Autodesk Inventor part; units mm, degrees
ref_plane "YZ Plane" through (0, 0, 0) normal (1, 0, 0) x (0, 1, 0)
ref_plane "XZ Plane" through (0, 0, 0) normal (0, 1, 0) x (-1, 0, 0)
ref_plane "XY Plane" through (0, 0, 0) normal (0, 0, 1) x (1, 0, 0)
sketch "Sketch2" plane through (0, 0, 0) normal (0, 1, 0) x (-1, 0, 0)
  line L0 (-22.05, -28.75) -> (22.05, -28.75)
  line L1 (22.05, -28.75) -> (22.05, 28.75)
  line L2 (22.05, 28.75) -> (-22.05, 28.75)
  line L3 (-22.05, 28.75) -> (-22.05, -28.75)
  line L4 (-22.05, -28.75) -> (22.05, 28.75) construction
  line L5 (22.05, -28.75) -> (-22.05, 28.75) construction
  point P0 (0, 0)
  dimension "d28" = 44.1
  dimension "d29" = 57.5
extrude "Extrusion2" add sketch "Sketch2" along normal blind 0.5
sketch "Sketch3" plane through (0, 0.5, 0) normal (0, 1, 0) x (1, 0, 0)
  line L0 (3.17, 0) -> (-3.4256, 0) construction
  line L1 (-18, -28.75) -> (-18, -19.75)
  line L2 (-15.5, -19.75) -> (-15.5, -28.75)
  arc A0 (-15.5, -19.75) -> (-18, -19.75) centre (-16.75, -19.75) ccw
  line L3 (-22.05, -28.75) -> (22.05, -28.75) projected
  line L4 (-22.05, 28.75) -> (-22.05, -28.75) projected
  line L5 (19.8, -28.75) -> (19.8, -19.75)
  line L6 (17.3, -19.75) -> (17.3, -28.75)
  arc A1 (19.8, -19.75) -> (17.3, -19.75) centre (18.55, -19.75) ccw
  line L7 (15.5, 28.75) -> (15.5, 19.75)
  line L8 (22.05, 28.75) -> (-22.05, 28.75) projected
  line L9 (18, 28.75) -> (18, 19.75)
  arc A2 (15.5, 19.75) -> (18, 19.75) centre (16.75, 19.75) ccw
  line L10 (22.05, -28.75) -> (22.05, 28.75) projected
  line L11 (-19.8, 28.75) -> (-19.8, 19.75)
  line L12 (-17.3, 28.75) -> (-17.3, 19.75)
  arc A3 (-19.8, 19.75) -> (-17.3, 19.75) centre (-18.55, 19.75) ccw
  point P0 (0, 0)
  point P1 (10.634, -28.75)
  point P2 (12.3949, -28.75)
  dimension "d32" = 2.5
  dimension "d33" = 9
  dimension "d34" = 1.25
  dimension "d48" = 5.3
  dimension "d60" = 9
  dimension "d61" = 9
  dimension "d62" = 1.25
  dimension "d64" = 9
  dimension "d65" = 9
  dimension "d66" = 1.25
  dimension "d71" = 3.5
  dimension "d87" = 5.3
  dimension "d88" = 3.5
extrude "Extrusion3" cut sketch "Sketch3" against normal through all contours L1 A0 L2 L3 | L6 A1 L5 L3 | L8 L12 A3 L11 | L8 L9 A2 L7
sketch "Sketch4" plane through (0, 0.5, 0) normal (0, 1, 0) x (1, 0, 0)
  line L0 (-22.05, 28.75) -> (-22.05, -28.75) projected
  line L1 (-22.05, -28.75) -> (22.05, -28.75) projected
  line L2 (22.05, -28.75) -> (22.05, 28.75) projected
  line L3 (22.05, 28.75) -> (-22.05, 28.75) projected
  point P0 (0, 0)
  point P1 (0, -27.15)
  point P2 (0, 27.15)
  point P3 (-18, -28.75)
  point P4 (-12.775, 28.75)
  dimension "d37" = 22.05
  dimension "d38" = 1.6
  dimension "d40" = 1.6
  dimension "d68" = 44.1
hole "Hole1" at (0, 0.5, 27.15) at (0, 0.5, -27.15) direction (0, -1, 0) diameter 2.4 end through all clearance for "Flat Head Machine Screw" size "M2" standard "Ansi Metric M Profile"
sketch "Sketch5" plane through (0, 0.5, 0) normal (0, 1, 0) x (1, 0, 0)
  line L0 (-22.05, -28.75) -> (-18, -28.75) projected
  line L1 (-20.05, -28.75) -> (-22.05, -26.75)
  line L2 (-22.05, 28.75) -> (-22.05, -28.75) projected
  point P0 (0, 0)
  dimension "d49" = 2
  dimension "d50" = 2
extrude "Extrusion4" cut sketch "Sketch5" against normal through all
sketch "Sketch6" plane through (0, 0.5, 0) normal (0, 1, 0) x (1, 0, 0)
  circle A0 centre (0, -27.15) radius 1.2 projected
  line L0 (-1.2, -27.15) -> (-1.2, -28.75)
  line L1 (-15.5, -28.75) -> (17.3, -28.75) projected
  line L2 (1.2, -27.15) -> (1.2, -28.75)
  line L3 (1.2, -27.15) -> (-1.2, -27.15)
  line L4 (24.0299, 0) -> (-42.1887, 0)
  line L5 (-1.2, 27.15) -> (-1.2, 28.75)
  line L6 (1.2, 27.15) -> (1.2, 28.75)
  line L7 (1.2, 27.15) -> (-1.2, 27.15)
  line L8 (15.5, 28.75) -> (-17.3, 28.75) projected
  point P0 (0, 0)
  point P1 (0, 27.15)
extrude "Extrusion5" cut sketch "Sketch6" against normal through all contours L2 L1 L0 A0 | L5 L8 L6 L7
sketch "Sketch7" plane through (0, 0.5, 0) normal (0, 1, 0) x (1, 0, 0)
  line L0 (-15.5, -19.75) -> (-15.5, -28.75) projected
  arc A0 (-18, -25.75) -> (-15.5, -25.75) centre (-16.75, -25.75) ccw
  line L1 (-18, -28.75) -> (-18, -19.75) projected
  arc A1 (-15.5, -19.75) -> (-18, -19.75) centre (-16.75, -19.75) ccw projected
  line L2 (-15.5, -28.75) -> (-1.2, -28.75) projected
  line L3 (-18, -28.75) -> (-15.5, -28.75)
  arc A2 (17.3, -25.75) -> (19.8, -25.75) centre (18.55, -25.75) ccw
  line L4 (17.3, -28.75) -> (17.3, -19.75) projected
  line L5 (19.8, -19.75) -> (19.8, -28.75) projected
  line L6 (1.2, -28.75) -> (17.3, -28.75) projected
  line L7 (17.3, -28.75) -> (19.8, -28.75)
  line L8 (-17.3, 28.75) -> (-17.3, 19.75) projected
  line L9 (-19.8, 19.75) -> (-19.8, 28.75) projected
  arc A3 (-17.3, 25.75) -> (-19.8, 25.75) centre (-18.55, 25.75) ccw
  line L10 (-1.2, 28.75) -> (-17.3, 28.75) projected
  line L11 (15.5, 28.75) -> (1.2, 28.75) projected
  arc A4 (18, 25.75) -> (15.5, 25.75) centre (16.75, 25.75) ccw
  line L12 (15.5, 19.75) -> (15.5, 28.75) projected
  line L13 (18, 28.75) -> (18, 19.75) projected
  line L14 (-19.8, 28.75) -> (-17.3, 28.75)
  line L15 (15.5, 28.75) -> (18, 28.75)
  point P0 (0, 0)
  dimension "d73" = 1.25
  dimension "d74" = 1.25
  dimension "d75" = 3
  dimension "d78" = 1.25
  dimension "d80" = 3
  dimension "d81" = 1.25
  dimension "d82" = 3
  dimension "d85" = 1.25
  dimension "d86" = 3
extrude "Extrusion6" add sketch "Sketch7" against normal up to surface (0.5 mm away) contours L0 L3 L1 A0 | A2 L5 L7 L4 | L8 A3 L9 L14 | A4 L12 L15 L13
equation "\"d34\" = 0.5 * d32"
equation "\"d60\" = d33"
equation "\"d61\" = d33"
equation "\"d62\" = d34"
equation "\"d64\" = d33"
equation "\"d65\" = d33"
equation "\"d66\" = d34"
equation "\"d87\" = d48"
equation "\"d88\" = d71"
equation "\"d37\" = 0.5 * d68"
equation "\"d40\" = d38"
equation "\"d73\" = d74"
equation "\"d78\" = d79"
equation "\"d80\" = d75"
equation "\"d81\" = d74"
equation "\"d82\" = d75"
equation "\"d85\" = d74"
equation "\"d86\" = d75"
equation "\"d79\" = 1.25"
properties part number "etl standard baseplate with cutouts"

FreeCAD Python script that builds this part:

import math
import FreeCAD as App
import Part
import Sketcher
from FreeCAD import Vector
Q = App.Units.Quantity

doc = App.newDocument("Part")
body = doc.addObject("PartDesign::Body", "Body")

sketch1 = doc.addObject("Sketcher::SketchObject", "Sketch")
body.addObject(sketch1)
sketch1.AttachmentSupport = (doc.XZ_Plane, [""])
sketch1.MapMode = "FlatFace"
sketch1.addGeometry(Part.LineSegment(Vector(22, 29, 0), Vector(22, -29, 0)), False)
sketch1.addGeometry(Part.LineSegment(Vector(22, -29, 0), Vector(-22, -29, 0)), False)
sketch1.addGeometry(Part.LineSegment(Vector(-22, -29, 0), Vector(-22, 29, 0)), False)
sketch1.addGeometry(Part.LineSegment(Vector(-22, 29, 0), Vector(22, 29, 0)), False)
sketch1.addConstraint(Sketcher.Constraint("Coincident", 0, 2, 1, 1))
sketch1.addConstraint(Sketcher.Constraint("Coincident", 1, 2, 2, 1))
sketch1.addConstraint(Sketcher.Constraint("Coincident", 2, 2, 3, 1))
sketch1.addConstraint(Sketcher.Constraint("Coincident", 3, 2, 0, 1))
sketch1.addConstraint(Sketcher.Constraint("Vertical", 0))
sketch1.addConstraint(Sketcher.Constraint("Horizontal", 1))
sketch1.addConstraint(Sketcher.Constraint("Vertical", 2))
sketch1.addConstraint(Sketcher.Constraint("Horizontal", 3))
sketch1.addConstraint(Sketcher.Constraint("Symmetric", 0, 2, 2, 2, -1, 1))
sketch1.addConstraint(Sketcher.Constraint("DistanceX", 1, 2, 1, 1, Q("44.1 mm")))
sketch1.addConstraint(Sketcher.Constraint("DistanceY", 0, 2, 0, 1, Q("57.5 mm")))
pad1 = doc.addObject("PartDesign::Pad", "Pad")
body.addObject(pad1)
pad1.Profile = sketch1
pad1.Length = 0.5
pad1.Reversed = True

sketch2 = doc.addObject("Sketcher::SketchObject", "Sketch001")
body.addObject(sketch2)
sketch2.AttachmentSupport = (doc.XZ_Plane, [""])
sketch2.MapMode = "FlatFace"
sketch2.AttachmentOffset = App.Placement(Vector(0, 0, -0.5), App.Rotation())
sketch2.addGeometry(Part.LineSegment(Vector(-18, 19.8, 0), Vector(-18, 28.8, 0)), False)
sketch2.addGeometry(Part.LineSegment(Vector(-18, 28.8, 0), Vector(-15.5, 28.8, 0)), False)
sketch2.addGeometry(Part.LineSegment(Vector(-15.5, 28.8, 0), Vector(-15.5, 19.8, 0)), False)
sketch2.addGeometry(Part.ArcOfCircle(Part.Circle(Vector(-16.8, 19.8, 0), Vector(0, 0, 1), 1.2), math.radians(180), math.radians(360)), False)
sketch2.addGeometry(Part.LineSegment(Vector(17.3, 19.8, 0), Vector(17.3, 28.8, 0)), False)
sketch2.addGeometry(Part.LineSegment(Vector(17.3, 28.8, 0), Vector(19.8, 28.8, 0)), False)
sketch2.addGeometry(Part.LineSegment(Vector(19.8, 28.8, 0), Vector(19.8, 19.8, 0)), False)
sketch2.addGeometry(Part.ArcOfCircle(Part.Circle(Vector(18.6, 19.8, 0), Vector(0, 0, 1), 1.2), math.radians(180), math.radians(360)), False)
sketch2.addGeometry(Part.LineSegment(Vector(-17.3, -28.8, 0), Vector(-19.8, -28.8, 0)), False)
sketch2.addGeometry(Part.LineSegment(Vector(-19.8, -28.8, 0), Vector(-19.8, -19.8, 0)), False)
sketch2.addGeometry(Part.ArcOfCircle(Part.Circle(Vector(-18.6, -19.8, 0), Vector(0, 0, 1), 1.2), math.radians(0), math.radians(180)), False)
sketch2.addGeometry(Part.LineSegment(Vector(-17.3, -19.8, 0), Vector(-17.3, -28.8, 0)), False)
sketch2.addGeometry(Part.LineSegment(Vector(18, -28.8, 0), Vector(15.5, -28.8, 0)), False)
sketch2.addGeometry(Part.LineSegment(Vector(15.5, -28.8, 0), Vector(15.5, -19.8, 0)), False)
sketch2.addGeometry(Part.ArcOfCircle(Part.Circle(Vector(16.8, -19.8, 0), Vector(0, 0, 1), 1.2), math.radians(0), math.radians(180)), False)
sketch2.addGeometry(Part.LineSegment(Vector(18, -19.8, 0), Vector(18, -28.8, 0)), False)
sketch2.addConstraint(Sketcher.Constraint("Coincident", 0, 2, 1, 1))
sketch2.addConstraint(Sketcher.Constraint("Coincident", 1, 2, 2, 1))
sketch2.addConstraint(Sketcher.Constraint("Tangent", 2, 2, 3, 2))
sketch2.addConstraint(Sketcher.Constraint("Tangent", 3, 1, 0, 1))
sketch2.addConstraint(Sketcher.Constraint("Coincident", 4, 2, 5, 1))
sketch2.addConstraint(Sketcher.Constraint("Coincident", 5, 2, 6, 1))
sketch2.addConstraint(Sketcher.Constraint("Tangent", 6, 2, 7, 2))
sketch2.addConstraint(Sketcher.Constraint("Tangent", 7, 1, 4, 1))
sketch2.addConstraint(Sketcher.Constraint("Coincident", 8, 2, 9, 1))
sketch2.addConstraint(Sketcher.Constraint("Tangent", 9, 2, 10, 2))
sketch2.addConstraint(Sketcher.Constraint("Tangent", 10, 1, 11, 1))
sketch2.addConstraint(Sketcher.Constraint("Coincident", 11, 2, 8, 1))
sketch2.addConstraint(Sketcher.Constraint("Coincident", 12, 2, 13, 1))
sketch2.addConstraint(Sketcher.Constraint("Tangent", 13, 2, 14, 2))
sketch2.addConstraint(Sketcher.Constraint("Tangent", 14, 1, 15, 1))
sketch2.addConstraint(Sketcher.Constraint("Coincident", 15, 2, 12, 1))
sketch2.addConstraint(Sketcher.Constraint("Vertical", 0))
sketch2.addConstraint(Sketcher.Constraint("Horizontal", 1))
sketch2.addConstraint(Sketcher.Constraint("Vertical", 2))
sketch2.addConstraint(Sketcher.Constraint("Vertical", 4))
sketch2.addConstraint(Sketcher.Constraint("Horizontal", 5))
sketch2.addConstraint(Sketcher.Constraint("Vertical", 6))
sketch2.addConstraint(Sketcher.Constraint("Horizontal", 8))
sketch2.addConstraint(Sketcher.Constraint("Vertical", 9))
sketch2.addConstraint(Sketcher.Constraint("Vertical", 11))
sketch2.addConstraint(Sketcher.Constraint("Horizontal", 12))
sketch2.addConstraint(Sketcher.Constraint("Vertical", 13))
sketch2.addConstraint(Sketcher.Constraint("Vertical", 15))
sketch2.addConstraint(Sketcher.Constraint("Equal", 3, 7))
sketch2.addConstraint(Sketcher.Constraint("Equal", 7, 10))
sketch2.addConstraint(Sketcher.Constraint("Equal", 10, 14))
sketch2.addConstraint(Sketcher.Constraint("Symmetric", 7, 3, 10, 3, -1, 1))
sketch2.addConstraint(Sketcher.Constraint("Symmetric", 3, 3, 14, 3, -1, 1))
sketch2.addConstraint(Sketcher.Constraint("Horizontal", 3, 3, 7, 3))
sketch2.addConstraint(Sketcher.Constraint("Horizontal", 1, 2, 4, 2))
sketch2.addConstraint(Sketcher.Constraint("Horizontal", 11, 2, 12, 2))
sketch2.addConstraint(Sketcher.Constraint("Equal", 6, 9))
sketch2.addConstraint(Sketcher.Constraint("DistanceY", 0, 1, 0, 2, Q("9 mm")))
sketch2.addConstraint(Sketcher.Constraint("Radius", 3, Q("1.25 mm")))
sketch2.addConstraint(Sketcher.Constraint("DistanceX", 0, 2, -1, 1, Q("18 mm")))
sketch2.addConstraint(Sketcher.Constraint("DistanceX", -1, 1, 4, 2, Q("17.3 mm")))
sketch2.addConstraint(Sketcher.Constraint("DistanceY", 10, 3, 3, 3, Q("39.5 mm")))
pocket1 = doc.addObject("PartDesign::Pocket", "Pocket")
body.addObject(pocket1)
pocket1.Profile = sketch2
pocket1.Type = "ThroughAll"
pocket1.Reversed = True

sketch3 = doc.addObject("Sketcher::SketchObject", "Sketch002")
body.addObject(sketch3)
sketch3.AttachmentSupport = (doc.XZ_Plane, [""])
sketch3.MapMode = "FlatFace"
sketch3.AttachmentOffset = App.Placement(Vector(0, 0, -0.5), App.Rotation())
sketch3.addGeometry(Part.Circle(Vector(0, 27.1, 0), Vector(0, 0, 1), 1.2), False)
sketch3.addGeometry(Part.Circle(Vector(0, -27.1, 0), Vector(0, 0, 1), 1.2), False)
sketch3.addConstraint(Sketcher.Constraint("Equal", 0, 1))
sketch3.addConstraint(Sketcher.Constraint("Symmetric", 0, 3, 1, 3, -1, 1))
sketch3.addConstraint(Sketcher.Constraint("PointOnObject", 0, 3, -2))
sketch3.addConstraint(Sketcher.Constraint("Diameter", 0, Q("2.4 mm")))
sketch3.addConstraint(Sketcher.Constraint("DistanceY", 1, 3, 0, 3, Q("54.3 mm")))
doc.recompute()
hole = doc.addObject("PartDesign::Hole", "Hole")
body.addObject(hole)
hole.Profile = sketch3
hole.ThreadType = "None"
hole.Diameter = 2.4
hole.DepthType = "ThroughAll"
hole.Reversed = True

sketch4 = doc.addObject("Sketcher::SketchObject", "Sketch003")
body.addObject(sketch4)
sketch4.AttachmentSupport = (doc.XZ_Plane, [""])
sketch4.MapMode = "FlatFace"
sketch4.AttachmentOffset = App.Placement(Vector(0, 0, -0.5), App.Rotation())
sketch4.addGeometry(Part.LineSegment(Vector(-22.1, 26.8, 0), Vector(-22.1, 28.8, 0)), False)
sketch4.addGeometry(Part.LineSegment(Vector(-22.1, 28.8, 0), Vector(-20.1, 28.8, 0)), False)
sketch4.addGeometry(Part.LineSegment(Vector(-20.1, 28.8, 0), Vector(-22.1, 26.8, 0)), False)
sketch4.addConstraint(Sketcher.Constraint("Coincident", 0, 2, 1, 1))
sketch4.addConstraint(Sketcher.Constraint("Coincident", 1, 2, 2, 1))
sketch4.addConstraint(Sketcher.Constraint("Coincident", 2, 2, 0, 1))
sketch4.addConstraint(Sketcher.Constraint("Vertical", 0))
sketch4.addConstraint(Sketcher.Constraint("Horizontal", 1))
sketch4.addConstraint(Sketcher.Constraint("Equal", 1, 0))
sketch4.addConstraint(Sketcher.Constraint("DistanceX", 1, 1, 1, 2, Q("2 mm")))
sketch4.addConstraint(Sketcher.Constraint("DistanceX", 0, 2, -1, 1, Q("22.05 mm")))
sketch4.addConstraint(Sketcher.Constraint("DistanceY", -1, 1, 0, 2, Q("28.75 mm")))
pocket2 = doc.addObject("PartDesign::Pocket", "Pocket001")
body.addObject(pocket2)
pocket2.Profile = sketch4
pocket2.Type = "ThroughAll"
pocket2.Reversed = True

sketch5 = doc.addObject("Sketcher::SketchObject", "Sketch004")
body.addObject(sketch5)
sketch5.AttachmentSupport = (doc.XZ_Plane, [""])
sketch5.MapMode = "FlatFace"
sketch5.AttachmentOffset = App.Placement(Vector(0, 0, -0.5), App.Rotation())
sketch5.addGeometry(Part.LineSegment(Vector(1.2, 28.8, 0), Vector(1.2, 27.1, 0)), False)
sketch5.addGeometry(Part.ArcOfCircle(Part.Circle(Vector(0, 27.1, 0), Vector(0, 0, 1), 1.2), math.radians(0), math.radians(180)), False)
sketch5.addGeometry(Part.LineSegment(Vector(-1.2, 27.1, 0), Vector(-1.2, 28.8, 0)), False)
sketch5.addGeometry(Part.LineSegment(Vector(-1.2, 28.8, 0), Vector(1.2, 28.8, 0)), False)
sketch5.addGeometry(Part.LineSegment(Vector(-1.2, -28.8, 0), Vector(-1.2, -27.1, 0)), False)
sketch5.addGeometry(Part.LineSegment(Vector(-1.2, -27.1, 0), Vector(1.2, -27.1, 0)), False)
sketch5.addGeometry(Part.LineSegment(Vector(1.2, -27.1, 0), Vector(1.2, -28.8, 0)), False)
sketch5.addGeometry(Part.LineSegment(Vector(1.2, -28.8, 0), Vector(-1.2, -28.8, 0)), False)
sketch5.addConstraint(Sketcher.Constraint("Tangent", 0, 2, 1, 1))
sketch5.addConstraint(Sketcher.Constraint("Tangent", 1, 2, 2, 1))
sketch5.addConstraint(Sketcher.Constraint("Coincident", 2, 2, 3, 1))
sketch5.addConstraint(Sketcher.Constraint("Coincident", 3, 2, 0, 1))
sketch5.addConstraint(Sketcher.Constraint("Coincident", 4, 2, 5, 1))
sketch5.addConstraint(Sketcher.Constraint("Coincident", 5, 2, 6, 1))
sketch5.addConstraint(Sketcher.Constraint("Coincident", 6, 2, 7, 1))
sketch5.addConstraint(Sketcher.Constraint("Coincident", 7, 2, 4, 1))
sketch5.addConstraint(Sketcher.Constraint("Vertical", 0))
sketch5.addConstraint(Sketcher.Constraint("Vertical", 2))
sketch5.addConstraint(Sketcher.Constraint("Horizontal", 3))
sketch5.addConstraint(Sketcher.Constraint("Vertical", 4))
sketch5.addConstraint(Sketcher.Constraint("Horizontal", 5))
sketch5.addConstraint(Sketcher.Constraint("Vertical", 6))
sketch5.addConstraint(Sketcher.Constraint("Horizontal", 7))
sketch5.addConstraint(Sketcher.Constraint("Symmetric", 0, 2, 4, 2, -1, 1))
sketch5.addConstraint(Sketcher.Constraint("Symmetric", 2, 2, 6, 2, -1, 1))
sketch5.addConstraint(Sketcher.Constraint("PointOnObject", 1, 3, -2))
sketch5.addConstraint(Sketcher.Constraint("Radius", 1, Q("1.2 mm")))
sketch5.addConstraint(Sketcher.Constraint("DistanceY", 0, 2, 0, 1, Q("1.6 mm")))
sketch5.addConstraint(Sketcher.Constraint("DistanceY", 4, 2, 1, 2, Q("54.3 mm")))
pocket3 = doc.addObject("PartDesign::Pocket", "Pocket002")
body.addObject(pocket3)
pocket3.Profile = sketch5
pocket3.Type = "ThroughAll"
pocket3.Reversed = True

sketch6 = doc.addObject("Sketcher::SketchObject", "Sketch005")
body.addObject(sketch6)
sketch6.AttachmentSupport = (doc.XZ_Plane, [""])
sketch6.MapMode = "FlatFace"
sketch6.AttachmentOffset = App.Placement(Vector(0, 0, -0.5), App.Rotation())
sketch6.addGeometry(Part.LineSegment(Vector(-15.5, 28.8, 0), Vector(-15.5, 25.8, 0)), False)
sketch6.addGeometry(Part.ArcOfCircle(Part.Circle(Vector(-16.8, 25.8, 0), Vector(0, 0, 1), 1.2), math.radians(0), math.radians(180)), False)
sketch6.addGeometry(Part.LineSegment(Vector(-18, 25.8, 0), Vector(-18, 28.8, 0)), False)
sketch6.addGeometry(Part.LineSegment(Vector(-18, 28.8, 0), Vector(-15.5, 28.8, 0)), False)
sketch6.addGeometry(Part.ArcOfCircle(Part.Circle(Vector(18.6, 25.8, 0), Vector(0, 0, 1), 1.2), math.radians(0), math.radians(180)), False)
sketch6.addGeometry(Part.LineSegment(Vector(17.3, 25.8, 0), Vector(17.3, 28.8, 0)), False)
sketch6.addGeometry(Part.LineSegment(Vector(17.3, 28.8, 0), Vector(19.8, 28.8, 0)), False)
sketch6.addGeometry(Part.LineSegment(Vector(19.8, 28.8, 0), Vector(19.8, 25.8, 0)), False)
sketch6.addGeometry(Part.LineSegment(Vector(-17.3, -25.8, 0), Vector(-17.3, -28.8, 0)), False)
sketch6.addGeometry(Part.LineSegment(Vector(-17.3, -28.8, 0), Vector(-19.8, -28.8, 0)), False)
sketch6.addGeometry(Part.LineSegment(Vector(-19.8, -28.8, 0), Vector(-19.8, -25.8, 0)), False)
sketch6.addGeometry(Part.ArcOfCircle(Part.Circle(Vector(-18.6, -25.8, 0), Vector(0, 0, 1), 1.2), math.radians(180), math.radians(360)), False)
sketch6.addGeometry(Part.ArcOfCircle(Part.Circle(Vector(16.8, -25.8, 0), Vector(0, 0, 1), 1.2), math.radians(180), math.radians(360)), False)
sketch6.addGeometry(Part.LineSegment(Vector(18, -25.8, 0), Vector(18, -28.8, 0)), False)
sketch6.addGeometry(Part.LineSegment(Vector(18, -28.8, 0), Vector(15.5, -28.8, 0)), False)
sketch6.addGeometry(Part.LineSegment(Vector(15.5, -28.8, 0), Vector(15.5, -25.8, 0)), False)
sketch6.addConstraint(Sketcher.Constraint("Tangent", 0, 2, 1, 1))
sketch6.addConstraint(Sketcher.Constraint("Tangent", 1, 2, 2, 1))
sketch6.addConstraint(Sketcher.Constraint("Coincident", 2, 2, 3, 1))
sketch6.addConstraint(Sketcher.Constraint("Coincident", 3, 2, 0, 1))
sketch6.addConstraint(Sketcher.Constraint("Tangent", 4, 2, 5, 1))
sketch6.addConstraint(Sketcher.Constraint("Coincident", 5, 2, 6, 1))
sketch6.addConstraint(Sketcher.Constraint("Coincident", 6, 2, 7, 1))
sketch6.addConstraint(Sketcher.Constraint("Tangent", 7, 2, 4, 1))
sketch6.addConstraint(Sketcher.Constraint("Coincident", 8, 2, 9, 1))
sketch6.addConstraint(Sketcher.Constraint("Coincident", 9, 2, 10, 1))
sketch6.addConstraint(Sketcher.Constraint("Tangent", 10, 2, 11, 1))
sketch6.addConstraint(Sketcher.Constraint("Tangent", 11, 2, 8, 1))
sketch6.addConstraint(Sketcher.Constraint("Tangent", 12, 2, 13, 1))
sketch6.addConstraint(Sketcher.Constraint("Coincident", 13, 2, 14, 1))
sketch6.addConstraint(Sketcher.Constraint("Coincident", 14, 2, 15, 1))
sketch6.addConstraint(Sketcher.Constraint("Tangent", 15, 2, 12, 1))
sketch6.addConstraint(Sketcher.Constraint("Vertical", 0))
sketch6.addConstraint(Sketcher.Constraint("Vertical", 2))
sketch6.addConstraint(Sketcher.Constraint("Horizontal", 3))
sketch6.addConstraint(Sketcher.Constraint("Vertical", 5))
sketch6.addConstraint(Sketcher.Constraint("Horizontal", 6))
sketch6.addConstraint(Sketcher.Constraint("Vertical", 7))
sketch6.addConstraint(Sketcher.Constraint("Vertical", 8))
sketch6.addConstraint(Sketcher.Constraint("Horizontal", 9))
sketch6.addConstraint(Sketcher.Constraint("Vertical", 10))
sketch6.addConstraint(Sketcher.Constraint("Vertical", 13))
sketch6.addConstraint(Sketcher.Constraint("Horizontal", 14))
sketch6.addConstraint(Sketcher.Constraint("Vertical", 15))
sketch6.addConstraint(Sketcher.Constraint("Equal", 1, 4))
sketch6.addConstraint(Sketcher.Constraint("Equal", 4, 11))
sketch6.addConstraint(Sketcher.Constraint("Equal", 11, 12))
sketch6.addConstraint(Sketcher.Constraint("Symmetric", 4, 3, 11, 3, -1, 1))
sketch6.addConstraint(Sketcher.Constraint("Symmetric", 1, 3, 12, 3, -1, 1))
sketch6.addConstraint(Sketcher.Constraint("Horizontal", 1, 3, 4, 3))
sketch6.addConstraint(Sketcher.Constraint("Horizontal", 3, 2, 5, 2))
sketch6.addConstraint(Sketcher.Constraint("Horizontal", 9, 2, 13, 2))
sketch6.addConstraint(Sketcher.Constraint("Equal", 7, 8))
sketch6.addConstraint(Sketcher.Constraint("DistanceY", 0, 2, 0, 1, Q("3 mm")))
sketch6.addConstraint(Sketcher.Constraint("Radius", 1, Q("1.25 mm")))
sketch6.addConstraint(Sketcher.Constraint("DistanceX", 1, 2, -1, 1, Q("18 mm")))
sketch6.addConstraint(Sketcher.Constraint("DistanceX", -1, 1, 4, 2, Q("17.3 mm")))
sketch6.addConstraint(Sketcher.Constraint("DistanceY", 11, 3, 1, 3, Q("51.5 mm")))
pad2 = doc.addObject("PartDesign::Pad", "Pad001")
body.addObject(pad2)
pad2.Profile = sketch6
pad2.Length = 0.5

doc.recompute()
